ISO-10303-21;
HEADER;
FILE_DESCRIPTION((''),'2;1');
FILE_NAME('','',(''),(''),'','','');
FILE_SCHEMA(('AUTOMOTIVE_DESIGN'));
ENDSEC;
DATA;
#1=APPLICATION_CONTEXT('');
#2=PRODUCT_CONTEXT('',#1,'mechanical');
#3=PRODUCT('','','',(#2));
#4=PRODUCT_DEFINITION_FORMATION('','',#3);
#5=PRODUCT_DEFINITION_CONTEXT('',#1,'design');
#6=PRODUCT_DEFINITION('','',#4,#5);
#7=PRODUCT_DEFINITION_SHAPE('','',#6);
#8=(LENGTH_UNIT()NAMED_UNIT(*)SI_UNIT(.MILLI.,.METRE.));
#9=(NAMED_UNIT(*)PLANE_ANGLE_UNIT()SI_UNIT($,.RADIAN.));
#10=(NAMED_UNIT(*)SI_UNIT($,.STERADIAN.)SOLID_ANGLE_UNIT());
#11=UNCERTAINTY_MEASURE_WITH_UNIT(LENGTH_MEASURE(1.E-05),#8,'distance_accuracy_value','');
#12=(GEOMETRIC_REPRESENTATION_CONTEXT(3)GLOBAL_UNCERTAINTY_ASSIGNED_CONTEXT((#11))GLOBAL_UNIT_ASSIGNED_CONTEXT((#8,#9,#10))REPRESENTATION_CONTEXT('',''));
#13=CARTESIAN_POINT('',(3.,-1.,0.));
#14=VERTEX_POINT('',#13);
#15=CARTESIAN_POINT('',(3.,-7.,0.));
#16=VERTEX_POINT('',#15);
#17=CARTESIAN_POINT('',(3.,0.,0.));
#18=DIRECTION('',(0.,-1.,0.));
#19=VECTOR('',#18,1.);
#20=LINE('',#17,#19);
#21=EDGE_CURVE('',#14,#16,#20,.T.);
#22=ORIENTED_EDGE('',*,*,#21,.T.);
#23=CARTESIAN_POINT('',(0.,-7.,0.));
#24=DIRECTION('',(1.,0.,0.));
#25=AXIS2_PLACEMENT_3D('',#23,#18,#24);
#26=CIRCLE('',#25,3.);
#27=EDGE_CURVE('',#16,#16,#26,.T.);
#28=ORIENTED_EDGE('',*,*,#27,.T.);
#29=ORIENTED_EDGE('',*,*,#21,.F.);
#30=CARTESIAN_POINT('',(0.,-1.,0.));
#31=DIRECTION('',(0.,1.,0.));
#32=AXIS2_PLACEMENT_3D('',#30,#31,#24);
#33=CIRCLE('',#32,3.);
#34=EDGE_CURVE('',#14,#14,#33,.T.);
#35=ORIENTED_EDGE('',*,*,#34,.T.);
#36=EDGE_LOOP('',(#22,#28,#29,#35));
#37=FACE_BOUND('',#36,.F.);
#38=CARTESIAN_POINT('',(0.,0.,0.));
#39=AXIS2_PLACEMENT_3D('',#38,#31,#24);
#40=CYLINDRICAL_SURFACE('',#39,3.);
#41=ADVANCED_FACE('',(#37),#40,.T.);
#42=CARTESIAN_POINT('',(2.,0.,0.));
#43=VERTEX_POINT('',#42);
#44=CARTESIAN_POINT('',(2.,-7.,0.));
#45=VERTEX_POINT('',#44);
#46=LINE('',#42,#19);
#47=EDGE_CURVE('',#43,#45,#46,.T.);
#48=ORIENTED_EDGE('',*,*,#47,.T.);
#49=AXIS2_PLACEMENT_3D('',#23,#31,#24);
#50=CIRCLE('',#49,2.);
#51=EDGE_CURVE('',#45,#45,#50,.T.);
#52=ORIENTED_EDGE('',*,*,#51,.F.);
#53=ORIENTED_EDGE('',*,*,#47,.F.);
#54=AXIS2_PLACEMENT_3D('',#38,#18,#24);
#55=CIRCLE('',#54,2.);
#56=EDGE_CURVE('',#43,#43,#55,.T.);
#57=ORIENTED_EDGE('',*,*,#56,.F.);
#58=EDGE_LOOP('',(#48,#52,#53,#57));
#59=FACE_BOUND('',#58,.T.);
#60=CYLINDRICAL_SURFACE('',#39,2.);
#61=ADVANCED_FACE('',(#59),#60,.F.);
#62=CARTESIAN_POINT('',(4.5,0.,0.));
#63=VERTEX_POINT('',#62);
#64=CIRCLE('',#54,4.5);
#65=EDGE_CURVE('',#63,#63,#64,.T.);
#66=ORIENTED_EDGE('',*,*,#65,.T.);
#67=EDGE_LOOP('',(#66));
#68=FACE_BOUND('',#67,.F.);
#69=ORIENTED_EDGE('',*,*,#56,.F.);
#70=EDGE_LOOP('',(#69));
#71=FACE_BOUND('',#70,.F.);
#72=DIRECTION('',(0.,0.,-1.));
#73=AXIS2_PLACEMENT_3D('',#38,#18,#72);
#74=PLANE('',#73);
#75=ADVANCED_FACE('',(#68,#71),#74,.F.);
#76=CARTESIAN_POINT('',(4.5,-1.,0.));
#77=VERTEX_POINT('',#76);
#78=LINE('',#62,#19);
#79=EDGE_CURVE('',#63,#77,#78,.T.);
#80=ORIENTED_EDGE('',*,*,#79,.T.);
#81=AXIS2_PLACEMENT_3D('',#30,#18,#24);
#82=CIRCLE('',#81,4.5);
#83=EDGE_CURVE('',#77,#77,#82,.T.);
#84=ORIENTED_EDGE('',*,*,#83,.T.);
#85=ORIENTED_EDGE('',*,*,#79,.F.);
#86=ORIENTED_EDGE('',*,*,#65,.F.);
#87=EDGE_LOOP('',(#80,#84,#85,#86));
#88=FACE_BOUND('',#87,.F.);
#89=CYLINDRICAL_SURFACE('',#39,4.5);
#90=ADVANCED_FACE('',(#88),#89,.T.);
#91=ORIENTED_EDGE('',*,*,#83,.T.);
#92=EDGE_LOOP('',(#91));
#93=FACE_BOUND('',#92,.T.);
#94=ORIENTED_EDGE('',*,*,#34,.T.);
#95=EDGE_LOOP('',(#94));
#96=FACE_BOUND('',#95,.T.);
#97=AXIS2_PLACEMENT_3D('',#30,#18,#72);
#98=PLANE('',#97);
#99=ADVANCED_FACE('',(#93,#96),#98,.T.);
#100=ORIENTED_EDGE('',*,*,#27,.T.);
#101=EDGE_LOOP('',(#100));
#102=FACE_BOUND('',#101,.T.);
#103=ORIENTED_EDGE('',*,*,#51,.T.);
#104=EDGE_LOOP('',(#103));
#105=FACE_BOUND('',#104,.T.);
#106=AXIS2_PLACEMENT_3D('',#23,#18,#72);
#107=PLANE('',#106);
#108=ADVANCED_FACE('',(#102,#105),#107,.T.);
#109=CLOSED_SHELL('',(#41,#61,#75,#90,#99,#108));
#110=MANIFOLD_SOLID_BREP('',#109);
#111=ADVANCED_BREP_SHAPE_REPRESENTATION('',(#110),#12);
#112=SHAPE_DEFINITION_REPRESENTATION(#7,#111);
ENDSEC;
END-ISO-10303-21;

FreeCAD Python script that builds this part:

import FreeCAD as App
import Part
import Sketcher
from FreeCAD import Vector

doc = App.newDocument("Part")
body = doc.addObject("PartDesign::Body", "Body")

# Sketch on XZ plane
sketch1 = doc.addObject("Sketcher::SketchObject", "Sketch")
body.addObject(sketch1)
sketch1.AttachmentSupport = (doc.XZ_Plane, [""])
sketch1.MapMode = "FlatFace"
sketch1.addGeometry(Part.Circle(Vector(0, 0, 0), Vector(0, 0, 1), 4.5), False)
sketch1.addConstraint([
    Sketcher.Constraint("Coincident", 0, 3, -1, 1),
    Sketcher.Constraint("Diameter", 0, 9.0),
])
pad1 = doc.addObject("PartDesign::Pad", "Pad")
body.addObject(pad1)
pad1.Profile = sketch1
pad1.Length = 1

# Sketch on XZ plane
sketch2 = doc.addObject("Sketcher::SketchObject", "Sketch001")
body.addObject(sketch2)
sketch2.AttachmentSupport = (doc.XZ_Plane, [""])
sketch2.MapMode = "FlatFace"
sketch2.addGeometry(Part.Circle(Vector(0, 0, 0), Vector(0, 0, 1), 3), False)
sketch2.addConstraint([
    Sketcher.Constraint("Coincident", 0, 3, -1, 1),
    Sketcher.Constraint("Diameter", 0, 6.0),
])
pad2 = doc.addObject("PartDesign::Pad", "Pad001")
body.addObject(pad2)
pad2.Profile = sketch2
pad2.Length = 7

# Sketch on XZ plane
sketch3 = doc.addObject("Sketcher::SketchObject", "Sketch002")
body.addObject(sketch3)
sketch3.AttachmentSupport = (doc.XZ_Plane, [""])
sketch3.MapMode = "FlatFace"
sketch3.addGeometry(Part.Circle(Vector(0, 0, 0), Vector(0, 0, 1), 2), False)
sketch3.addConstraint([
    Sketcher.Constraint("Coincident", 0, 3, -1, 1),
    Sketcher.Constraint("Diameter", 0, 4.0),
])
pocket1 = doc.addObject("PartDesign::Pocket", "Pocket")
body.addObject(pocket1)
pocket1.Profile = sketch3
pocket1.Type = "ThroughAll"
pocket1.Reversed = True

doc.recompute()
